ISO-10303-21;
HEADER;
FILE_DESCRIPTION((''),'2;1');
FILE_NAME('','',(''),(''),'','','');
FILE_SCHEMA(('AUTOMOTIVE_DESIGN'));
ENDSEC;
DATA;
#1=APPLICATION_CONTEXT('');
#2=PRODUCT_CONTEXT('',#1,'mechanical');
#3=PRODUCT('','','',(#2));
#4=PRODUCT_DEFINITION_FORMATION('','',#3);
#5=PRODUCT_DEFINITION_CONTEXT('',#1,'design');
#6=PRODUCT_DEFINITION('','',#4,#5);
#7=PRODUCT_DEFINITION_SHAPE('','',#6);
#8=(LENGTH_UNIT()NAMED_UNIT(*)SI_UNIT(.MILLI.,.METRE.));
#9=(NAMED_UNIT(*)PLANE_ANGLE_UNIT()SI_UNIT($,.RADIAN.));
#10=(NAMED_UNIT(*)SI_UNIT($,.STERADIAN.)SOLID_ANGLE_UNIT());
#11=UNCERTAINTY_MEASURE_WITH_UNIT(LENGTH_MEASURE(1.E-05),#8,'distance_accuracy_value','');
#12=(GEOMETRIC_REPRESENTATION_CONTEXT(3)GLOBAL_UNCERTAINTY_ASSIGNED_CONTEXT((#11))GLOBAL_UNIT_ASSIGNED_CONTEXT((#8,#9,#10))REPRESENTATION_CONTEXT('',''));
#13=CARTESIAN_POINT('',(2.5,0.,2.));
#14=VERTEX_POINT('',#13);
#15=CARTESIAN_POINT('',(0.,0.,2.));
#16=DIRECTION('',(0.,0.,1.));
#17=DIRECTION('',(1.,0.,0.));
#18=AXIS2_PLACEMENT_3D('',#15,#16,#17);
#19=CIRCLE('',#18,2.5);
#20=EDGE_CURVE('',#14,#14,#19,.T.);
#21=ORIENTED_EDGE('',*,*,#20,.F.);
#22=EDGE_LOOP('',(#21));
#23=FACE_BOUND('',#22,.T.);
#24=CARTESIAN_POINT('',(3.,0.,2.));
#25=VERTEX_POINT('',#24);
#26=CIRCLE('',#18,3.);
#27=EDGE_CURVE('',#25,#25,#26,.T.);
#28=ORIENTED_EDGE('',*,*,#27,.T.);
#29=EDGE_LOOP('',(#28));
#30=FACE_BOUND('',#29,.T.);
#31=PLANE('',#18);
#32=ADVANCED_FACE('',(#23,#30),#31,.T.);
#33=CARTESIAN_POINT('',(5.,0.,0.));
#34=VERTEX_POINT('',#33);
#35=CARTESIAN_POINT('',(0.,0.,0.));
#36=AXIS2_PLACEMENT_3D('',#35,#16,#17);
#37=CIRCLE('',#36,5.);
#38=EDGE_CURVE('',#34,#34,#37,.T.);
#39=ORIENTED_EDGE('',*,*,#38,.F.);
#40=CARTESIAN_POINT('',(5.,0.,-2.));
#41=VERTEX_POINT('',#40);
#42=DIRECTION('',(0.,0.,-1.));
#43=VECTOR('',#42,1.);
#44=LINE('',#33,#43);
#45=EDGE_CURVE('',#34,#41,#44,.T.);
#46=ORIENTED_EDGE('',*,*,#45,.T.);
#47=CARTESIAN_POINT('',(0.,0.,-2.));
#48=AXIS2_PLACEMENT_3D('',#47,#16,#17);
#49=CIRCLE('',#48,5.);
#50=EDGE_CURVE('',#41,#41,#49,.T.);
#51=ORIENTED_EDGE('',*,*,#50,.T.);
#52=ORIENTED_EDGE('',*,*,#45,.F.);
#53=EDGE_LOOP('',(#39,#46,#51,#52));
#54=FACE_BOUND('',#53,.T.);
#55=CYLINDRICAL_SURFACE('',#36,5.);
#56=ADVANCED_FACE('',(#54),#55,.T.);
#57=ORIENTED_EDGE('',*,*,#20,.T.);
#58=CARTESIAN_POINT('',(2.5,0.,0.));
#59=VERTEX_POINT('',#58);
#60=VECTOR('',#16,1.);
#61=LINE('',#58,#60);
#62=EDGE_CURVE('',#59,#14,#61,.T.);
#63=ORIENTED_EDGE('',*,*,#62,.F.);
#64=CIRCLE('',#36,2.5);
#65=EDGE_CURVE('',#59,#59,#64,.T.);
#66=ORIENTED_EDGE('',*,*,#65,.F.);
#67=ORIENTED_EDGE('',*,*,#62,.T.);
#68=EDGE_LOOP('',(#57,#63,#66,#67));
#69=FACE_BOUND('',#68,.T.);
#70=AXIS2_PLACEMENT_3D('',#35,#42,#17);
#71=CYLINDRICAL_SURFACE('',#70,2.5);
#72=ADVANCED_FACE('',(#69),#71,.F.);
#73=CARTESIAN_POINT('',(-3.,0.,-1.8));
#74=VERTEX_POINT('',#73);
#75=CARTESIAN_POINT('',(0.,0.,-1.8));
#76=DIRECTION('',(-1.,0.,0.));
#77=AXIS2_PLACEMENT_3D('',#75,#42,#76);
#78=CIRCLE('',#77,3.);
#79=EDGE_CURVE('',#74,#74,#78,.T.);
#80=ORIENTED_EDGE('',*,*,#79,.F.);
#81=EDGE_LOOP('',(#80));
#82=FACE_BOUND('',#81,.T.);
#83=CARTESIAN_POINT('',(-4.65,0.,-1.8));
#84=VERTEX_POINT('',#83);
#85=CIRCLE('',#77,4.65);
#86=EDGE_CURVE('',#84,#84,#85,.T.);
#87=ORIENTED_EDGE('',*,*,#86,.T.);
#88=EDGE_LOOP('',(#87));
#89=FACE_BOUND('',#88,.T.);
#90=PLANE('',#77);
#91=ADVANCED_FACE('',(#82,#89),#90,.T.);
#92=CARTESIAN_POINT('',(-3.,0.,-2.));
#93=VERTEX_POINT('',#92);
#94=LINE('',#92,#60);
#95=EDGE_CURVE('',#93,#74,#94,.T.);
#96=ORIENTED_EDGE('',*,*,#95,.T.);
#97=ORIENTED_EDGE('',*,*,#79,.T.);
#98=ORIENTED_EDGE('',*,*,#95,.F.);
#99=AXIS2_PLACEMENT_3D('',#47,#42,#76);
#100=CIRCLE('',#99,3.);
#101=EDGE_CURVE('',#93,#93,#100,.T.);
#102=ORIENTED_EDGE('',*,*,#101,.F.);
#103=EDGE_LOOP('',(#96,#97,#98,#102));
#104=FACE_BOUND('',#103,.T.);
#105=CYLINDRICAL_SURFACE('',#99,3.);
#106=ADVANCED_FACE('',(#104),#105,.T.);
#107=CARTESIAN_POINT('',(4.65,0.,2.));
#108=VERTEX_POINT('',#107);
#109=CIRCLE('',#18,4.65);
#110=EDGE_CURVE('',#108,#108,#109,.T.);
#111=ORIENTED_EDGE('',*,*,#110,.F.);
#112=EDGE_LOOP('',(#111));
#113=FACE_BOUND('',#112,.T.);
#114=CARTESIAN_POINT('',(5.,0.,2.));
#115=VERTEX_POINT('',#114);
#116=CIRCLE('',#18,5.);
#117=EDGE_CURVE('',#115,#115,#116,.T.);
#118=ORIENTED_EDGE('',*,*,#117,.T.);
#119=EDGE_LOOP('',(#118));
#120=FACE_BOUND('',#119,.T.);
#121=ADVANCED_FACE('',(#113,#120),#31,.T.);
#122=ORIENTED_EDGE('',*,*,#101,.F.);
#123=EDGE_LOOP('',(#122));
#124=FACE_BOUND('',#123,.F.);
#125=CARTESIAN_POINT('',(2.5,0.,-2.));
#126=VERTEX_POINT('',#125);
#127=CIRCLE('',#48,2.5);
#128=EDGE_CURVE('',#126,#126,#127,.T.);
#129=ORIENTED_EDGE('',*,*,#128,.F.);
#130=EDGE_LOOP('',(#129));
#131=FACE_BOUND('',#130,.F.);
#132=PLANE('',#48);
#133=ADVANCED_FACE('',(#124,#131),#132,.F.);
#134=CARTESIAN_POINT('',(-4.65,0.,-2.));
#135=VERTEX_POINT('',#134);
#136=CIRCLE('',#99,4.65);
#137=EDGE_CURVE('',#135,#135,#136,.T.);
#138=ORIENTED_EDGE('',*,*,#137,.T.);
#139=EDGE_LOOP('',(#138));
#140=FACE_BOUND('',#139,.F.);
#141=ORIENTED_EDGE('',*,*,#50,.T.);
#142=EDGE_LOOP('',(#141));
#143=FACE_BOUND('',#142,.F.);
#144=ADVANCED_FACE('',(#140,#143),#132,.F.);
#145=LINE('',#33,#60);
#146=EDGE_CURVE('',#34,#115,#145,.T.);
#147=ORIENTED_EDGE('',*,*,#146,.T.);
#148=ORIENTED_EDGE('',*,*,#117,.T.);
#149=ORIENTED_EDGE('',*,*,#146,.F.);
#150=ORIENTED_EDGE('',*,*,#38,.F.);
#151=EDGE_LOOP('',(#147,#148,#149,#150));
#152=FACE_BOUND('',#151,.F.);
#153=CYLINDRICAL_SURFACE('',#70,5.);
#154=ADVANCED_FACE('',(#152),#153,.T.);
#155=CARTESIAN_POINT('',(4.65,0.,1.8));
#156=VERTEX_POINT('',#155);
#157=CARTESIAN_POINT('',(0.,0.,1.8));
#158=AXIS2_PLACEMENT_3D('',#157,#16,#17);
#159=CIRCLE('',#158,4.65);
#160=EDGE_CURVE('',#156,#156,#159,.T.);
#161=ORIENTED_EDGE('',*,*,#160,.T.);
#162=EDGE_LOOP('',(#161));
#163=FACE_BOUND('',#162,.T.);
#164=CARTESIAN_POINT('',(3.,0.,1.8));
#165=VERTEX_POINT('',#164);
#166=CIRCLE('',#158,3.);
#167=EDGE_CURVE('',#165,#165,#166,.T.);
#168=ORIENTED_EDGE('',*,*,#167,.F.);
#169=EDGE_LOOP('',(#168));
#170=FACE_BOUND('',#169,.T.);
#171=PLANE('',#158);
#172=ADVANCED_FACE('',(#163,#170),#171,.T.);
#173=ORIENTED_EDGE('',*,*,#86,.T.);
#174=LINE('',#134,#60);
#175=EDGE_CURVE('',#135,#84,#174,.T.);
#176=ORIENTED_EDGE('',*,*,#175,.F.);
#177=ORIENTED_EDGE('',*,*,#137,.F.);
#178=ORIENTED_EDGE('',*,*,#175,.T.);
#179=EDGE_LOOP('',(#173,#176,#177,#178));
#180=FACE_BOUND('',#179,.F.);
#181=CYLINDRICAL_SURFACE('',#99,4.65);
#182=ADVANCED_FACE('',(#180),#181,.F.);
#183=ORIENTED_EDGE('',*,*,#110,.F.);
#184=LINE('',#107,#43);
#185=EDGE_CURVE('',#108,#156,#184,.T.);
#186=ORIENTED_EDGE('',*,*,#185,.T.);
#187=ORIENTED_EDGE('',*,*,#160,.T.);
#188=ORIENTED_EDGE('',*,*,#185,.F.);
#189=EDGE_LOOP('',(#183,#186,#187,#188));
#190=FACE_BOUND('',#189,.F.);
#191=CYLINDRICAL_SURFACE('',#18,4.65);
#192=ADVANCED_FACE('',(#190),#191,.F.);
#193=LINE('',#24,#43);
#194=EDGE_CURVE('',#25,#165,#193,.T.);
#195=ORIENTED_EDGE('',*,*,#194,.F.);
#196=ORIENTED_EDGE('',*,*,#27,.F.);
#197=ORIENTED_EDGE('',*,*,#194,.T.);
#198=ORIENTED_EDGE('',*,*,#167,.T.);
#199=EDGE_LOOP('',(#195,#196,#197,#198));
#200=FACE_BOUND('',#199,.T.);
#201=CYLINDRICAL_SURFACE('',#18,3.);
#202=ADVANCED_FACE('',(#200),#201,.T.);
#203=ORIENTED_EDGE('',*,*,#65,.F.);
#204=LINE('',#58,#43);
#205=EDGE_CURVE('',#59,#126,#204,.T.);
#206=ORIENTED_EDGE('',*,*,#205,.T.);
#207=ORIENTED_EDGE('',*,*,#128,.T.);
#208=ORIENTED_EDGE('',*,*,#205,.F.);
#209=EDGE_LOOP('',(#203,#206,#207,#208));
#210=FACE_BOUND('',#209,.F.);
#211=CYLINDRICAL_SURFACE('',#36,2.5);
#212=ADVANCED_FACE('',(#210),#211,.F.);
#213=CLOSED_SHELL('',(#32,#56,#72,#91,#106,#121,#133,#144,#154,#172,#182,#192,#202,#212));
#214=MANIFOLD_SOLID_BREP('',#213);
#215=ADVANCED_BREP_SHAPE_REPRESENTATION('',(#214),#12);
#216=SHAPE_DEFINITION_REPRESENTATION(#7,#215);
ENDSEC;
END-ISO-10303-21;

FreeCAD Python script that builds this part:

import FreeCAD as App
import Part
import Sketcher
from FreeCAD import Vector
Q = App.Units.Quantity

doc = App.newDocument("Part")
body = doc.addObject("PartDesign::Body", "Body")

# Sketch on XY plane
sketch1 = body.newObject("Sketcher::SketchObject", "Sketch")
sketch1.AttachmentSupport = (doc.getObject("XY_Plane"), [""])
sketch1.MapMode = "FlatFace"
sketch1.addGeometry(Part.Circle(Vector(0, 0, 0), Vector(0, 0, 1), 5), False)
sketch1.addGeometry(Part.Circle(Vector(0, 0, 0), Vector(0, 0, 1), 2.5), False)
sketch1.addConstraint(Sketcher.Constraint("Coincident", 0, 3, -1, 1))
sketch1.addConstraint(Sketcher.Constraint("Coincident", 1, 3, -1, 1))
sketch1.addConstraint(Sketcher.Constraint("Diameter", 0, Q("10 mm")))
sketch1.addConstraint(Sketcher.Constraint("Diameter", 1, Q("5 mm")))
pad1 = body.newObject("PartDesign::Pad", "Pad")
pad1.Profile = sketch1
pad1.Length = 4
pad1.Midplane = True

# Sketch on XY plane
sketch2 = body.newObject("Sketcher::SketchObject", "Sketch001")
sketch2.AttachmentSupport = (doc.getObject("XY_Plane"), [""])
sketch2.MapMode = "FlatFace"
sketch2.AttachmentOffset = App.Placement(Vector(0, 0, 2), App.Rotation())
sketch2.addGeometry(Part.Circle(Vector(0, 0, 0), Vector(0, 0, 1), 4.65), False)
sketch2.addGeometry(Part.Circle(Vector(0, 0, 0), Vector(0, 0, 1), 3), False)
sketch2.addConstraint(Sketcher.Constraint("Coincident", 0, 3, -1, 1))
sketch2.addConstraint(Sketcher.Constraint("Coincident", 1, 3, -1, 1))
sketch2.addConstraint(Sketcher.Constraint("Diameter", 1, Q("6 mm")))
sketch2.addConstraint(Sketcher.Constraint("Diameter", 0, Q("9.3 mm")))
pocket1 = body.newObject("PartDesign::Pocket", "Pocket")
pocket1.Profile = sketch2
pocket1.Length = 0.2

# Sketch on XY plane
sketch3 = body.newObject("Sketcher::SketchObject", "Sketch002")
sketch3.AttachmentSupport = (doc.getObject("XY_Plane"), [""])
sketch3.MapMode = "FlatFace"
sketch3.AttachmentOffset = App.Placement(Vector(0, 0, -2), App.Rotation())
sketch3.addGeometry(Part.Circle(Vector(0, 0, 0), Vector(0, 0, 1), 4.65), False)
sketch3.addGeometry(Part.Circle(Vector(0, 0, 0), Vector(0, 0, 1), 3), False)
sketch3.addConstraint(Sketcher.Constraint("Coincident", 0, 3, -1, 1))
sketch3.addConstraint(Sketcher.Constraint("Coincident", 1, 3, -1, 1))
sketch3.addConstraint(Sketcher.Constraint("Diameter", 1, Q("6 mm")))
sketch3.addConstraint(Sketcher.Constraint("Diameter", 0, Q("9.3 mm")))
pocket2 = body.newObject("PartDesign::Pocket", "Pocket001")
pocket2.Profile = sketch3
pocket2.Length = 0.2
pocket2.Reversed = True

doc.recompute()
